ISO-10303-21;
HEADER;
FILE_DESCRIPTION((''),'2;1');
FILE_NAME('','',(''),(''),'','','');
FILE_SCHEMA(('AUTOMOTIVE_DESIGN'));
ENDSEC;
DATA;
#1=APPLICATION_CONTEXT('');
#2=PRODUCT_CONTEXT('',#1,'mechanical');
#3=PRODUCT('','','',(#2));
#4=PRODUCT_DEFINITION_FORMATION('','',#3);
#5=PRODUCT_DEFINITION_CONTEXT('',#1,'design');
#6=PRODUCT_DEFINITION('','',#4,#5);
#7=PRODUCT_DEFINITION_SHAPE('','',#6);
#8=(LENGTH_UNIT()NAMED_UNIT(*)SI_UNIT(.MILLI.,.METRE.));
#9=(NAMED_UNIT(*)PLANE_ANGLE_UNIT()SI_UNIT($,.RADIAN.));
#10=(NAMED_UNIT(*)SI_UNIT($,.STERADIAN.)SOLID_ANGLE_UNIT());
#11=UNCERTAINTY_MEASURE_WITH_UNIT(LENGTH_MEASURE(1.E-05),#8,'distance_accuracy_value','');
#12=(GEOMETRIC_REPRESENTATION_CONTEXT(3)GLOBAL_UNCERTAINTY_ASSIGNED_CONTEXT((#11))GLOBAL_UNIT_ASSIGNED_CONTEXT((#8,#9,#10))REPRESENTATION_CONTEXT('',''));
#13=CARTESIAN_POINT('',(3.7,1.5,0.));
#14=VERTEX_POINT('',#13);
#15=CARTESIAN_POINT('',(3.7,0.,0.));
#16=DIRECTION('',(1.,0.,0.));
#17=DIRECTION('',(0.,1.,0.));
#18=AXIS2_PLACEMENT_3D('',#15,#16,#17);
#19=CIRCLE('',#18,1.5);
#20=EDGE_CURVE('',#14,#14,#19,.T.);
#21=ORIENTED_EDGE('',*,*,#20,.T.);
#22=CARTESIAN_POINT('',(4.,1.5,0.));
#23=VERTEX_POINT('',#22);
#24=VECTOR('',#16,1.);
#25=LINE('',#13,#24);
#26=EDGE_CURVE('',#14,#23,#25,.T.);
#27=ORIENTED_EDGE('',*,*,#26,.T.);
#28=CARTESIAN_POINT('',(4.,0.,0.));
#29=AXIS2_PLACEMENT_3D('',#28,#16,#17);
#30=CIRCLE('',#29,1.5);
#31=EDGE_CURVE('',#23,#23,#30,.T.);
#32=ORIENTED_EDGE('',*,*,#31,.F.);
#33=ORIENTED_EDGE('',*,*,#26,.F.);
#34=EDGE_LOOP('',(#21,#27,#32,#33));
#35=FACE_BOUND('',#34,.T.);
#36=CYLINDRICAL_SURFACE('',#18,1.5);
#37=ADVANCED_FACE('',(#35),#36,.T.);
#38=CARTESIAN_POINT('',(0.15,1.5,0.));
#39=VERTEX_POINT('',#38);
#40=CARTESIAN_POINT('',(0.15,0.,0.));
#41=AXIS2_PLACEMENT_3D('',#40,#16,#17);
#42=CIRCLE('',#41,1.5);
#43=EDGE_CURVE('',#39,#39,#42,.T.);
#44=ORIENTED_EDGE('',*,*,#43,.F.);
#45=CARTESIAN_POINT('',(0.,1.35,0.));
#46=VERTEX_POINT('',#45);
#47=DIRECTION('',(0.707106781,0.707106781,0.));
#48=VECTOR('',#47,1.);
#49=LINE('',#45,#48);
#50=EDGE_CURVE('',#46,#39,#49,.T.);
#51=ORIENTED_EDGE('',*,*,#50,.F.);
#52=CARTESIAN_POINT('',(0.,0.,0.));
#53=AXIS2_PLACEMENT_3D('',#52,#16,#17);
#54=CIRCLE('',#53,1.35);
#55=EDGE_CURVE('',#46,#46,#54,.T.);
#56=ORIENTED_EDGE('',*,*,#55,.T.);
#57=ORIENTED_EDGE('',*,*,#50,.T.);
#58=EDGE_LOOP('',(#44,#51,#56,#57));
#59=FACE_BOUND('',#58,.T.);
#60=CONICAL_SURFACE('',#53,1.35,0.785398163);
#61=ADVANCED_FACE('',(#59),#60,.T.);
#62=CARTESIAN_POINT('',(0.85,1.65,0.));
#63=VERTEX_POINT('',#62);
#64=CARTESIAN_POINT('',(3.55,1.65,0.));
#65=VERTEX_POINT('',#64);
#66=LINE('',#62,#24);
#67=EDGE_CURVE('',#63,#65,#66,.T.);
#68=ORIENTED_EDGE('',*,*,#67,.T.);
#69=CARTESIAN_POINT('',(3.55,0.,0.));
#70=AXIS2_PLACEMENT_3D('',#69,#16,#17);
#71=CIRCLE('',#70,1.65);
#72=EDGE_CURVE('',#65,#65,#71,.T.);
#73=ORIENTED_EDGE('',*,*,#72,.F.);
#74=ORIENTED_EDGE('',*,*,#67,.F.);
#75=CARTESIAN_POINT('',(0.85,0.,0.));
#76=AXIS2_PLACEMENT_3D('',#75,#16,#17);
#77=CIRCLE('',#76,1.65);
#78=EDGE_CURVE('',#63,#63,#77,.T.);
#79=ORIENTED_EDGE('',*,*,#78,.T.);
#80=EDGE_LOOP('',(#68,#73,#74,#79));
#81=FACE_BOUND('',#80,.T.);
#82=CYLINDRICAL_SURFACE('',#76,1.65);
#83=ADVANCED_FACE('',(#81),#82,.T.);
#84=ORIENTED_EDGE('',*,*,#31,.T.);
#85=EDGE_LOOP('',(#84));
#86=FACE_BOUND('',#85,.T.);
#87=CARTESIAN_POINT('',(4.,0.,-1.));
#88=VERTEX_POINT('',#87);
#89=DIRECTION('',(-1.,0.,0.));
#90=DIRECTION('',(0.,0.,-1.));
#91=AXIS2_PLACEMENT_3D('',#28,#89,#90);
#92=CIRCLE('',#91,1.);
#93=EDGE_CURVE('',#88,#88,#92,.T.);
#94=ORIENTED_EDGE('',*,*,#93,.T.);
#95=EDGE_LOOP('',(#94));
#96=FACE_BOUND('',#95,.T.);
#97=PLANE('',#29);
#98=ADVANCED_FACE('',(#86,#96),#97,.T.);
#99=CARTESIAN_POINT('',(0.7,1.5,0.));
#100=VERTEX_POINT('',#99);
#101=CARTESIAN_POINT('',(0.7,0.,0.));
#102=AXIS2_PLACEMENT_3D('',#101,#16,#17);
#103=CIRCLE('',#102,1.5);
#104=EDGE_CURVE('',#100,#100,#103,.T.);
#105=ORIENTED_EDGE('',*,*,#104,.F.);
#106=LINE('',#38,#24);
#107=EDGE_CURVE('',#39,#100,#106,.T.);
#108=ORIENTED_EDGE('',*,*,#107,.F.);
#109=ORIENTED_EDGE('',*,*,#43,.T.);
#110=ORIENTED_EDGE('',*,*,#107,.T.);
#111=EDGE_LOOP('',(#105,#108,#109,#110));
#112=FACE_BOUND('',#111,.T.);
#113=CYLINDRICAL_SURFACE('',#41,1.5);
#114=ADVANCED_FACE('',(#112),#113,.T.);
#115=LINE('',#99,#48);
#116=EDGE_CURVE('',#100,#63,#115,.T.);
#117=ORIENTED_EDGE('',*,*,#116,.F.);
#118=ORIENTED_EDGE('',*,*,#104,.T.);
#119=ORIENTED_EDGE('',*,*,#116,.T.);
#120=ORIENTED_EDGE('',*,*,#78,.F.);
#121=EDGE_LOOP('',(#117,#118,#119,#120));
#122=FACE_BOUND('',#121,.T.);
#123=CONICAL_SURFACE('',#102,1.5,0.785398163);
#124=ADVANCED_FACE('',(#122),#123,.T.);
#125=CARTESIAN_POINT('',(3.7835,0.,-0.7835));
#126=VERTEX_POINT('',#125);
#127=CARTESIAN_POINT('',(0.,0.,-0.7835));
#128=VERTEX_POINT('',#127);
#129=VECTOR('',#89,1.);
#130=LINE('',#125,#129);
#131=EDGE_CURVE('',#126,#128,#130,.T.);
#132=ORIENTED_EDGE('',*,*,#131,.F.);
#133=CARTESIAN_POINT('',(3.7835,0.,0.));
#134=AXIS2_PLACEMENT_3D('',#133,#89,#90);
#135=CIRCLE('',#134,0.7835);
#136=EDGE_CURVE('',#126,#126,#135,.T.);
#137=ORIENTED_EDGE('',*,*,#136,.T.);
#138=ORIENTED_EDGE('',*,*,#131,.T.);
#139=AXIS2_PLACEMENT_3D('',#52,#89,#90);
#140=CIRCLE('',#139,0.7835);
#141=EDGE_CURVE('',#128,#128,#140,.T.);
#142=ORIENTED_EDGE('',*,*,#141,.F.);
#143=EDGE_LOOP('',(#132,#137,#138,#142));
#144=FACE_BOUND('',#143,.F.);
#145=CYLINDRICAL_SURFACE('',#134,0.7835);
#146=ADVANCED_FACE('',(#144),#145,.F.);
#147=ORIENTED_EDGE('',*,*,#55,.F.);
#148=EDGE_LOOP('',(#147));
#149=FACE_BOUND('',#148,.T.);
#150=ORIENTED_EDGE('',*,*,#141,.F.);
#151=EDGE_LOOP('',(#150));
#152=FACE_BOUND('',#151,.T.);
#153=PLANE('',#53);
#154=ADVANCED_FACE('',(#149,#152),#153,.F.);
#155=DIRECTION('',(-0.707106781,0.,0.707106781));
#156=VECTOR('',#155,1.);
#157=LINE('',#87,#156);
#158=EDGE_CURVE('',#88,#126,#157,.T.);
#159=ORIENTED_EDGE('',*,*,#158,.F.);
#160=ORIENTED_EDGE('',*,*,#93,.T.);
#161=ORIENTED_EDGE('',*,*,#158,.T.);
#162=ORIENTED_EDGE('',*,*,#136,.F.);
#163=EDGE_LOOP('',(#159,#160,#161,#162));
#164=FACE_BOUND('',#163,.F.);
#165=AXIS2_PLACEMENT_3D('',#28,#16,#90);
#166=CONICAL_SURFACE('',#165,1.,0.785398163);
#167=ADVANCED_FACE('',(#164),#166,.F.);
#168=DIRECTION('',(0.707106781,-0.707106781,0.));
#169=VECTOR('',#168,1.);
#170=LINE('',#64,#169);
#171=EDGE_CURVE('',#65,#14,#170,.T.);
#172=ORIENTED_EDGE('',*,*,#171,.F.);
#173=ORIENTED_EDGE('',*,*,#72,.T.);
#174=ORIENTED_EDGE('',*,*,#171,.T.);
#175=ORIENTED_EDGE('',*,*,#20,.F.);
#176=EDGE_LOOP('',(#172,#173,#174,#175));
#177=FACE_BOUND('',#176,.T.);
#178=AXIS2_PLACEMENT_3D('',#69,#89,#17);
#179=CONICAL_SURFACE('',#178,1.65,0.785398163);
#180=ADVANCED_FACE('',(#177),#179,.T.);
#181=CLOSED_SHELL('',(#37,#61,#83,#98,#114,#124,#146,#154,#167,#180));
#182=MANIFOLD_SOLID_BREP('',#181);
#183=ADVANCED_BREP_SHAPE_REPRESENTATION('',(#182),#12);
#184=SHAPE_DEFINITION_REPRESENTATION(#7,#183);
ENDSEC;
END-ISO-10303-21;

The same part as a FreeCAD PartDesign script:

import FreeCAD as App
import Part
import Sketcher

V = App.Vector
Q = App.Units.Quantity


def add_polygon(sketch, points):
    """Adds a closed chain of lines whose ends are joined by coincident constraints."""
    first, n = sketch.GeometryCount, len(points)
    for a, b in zip(points, points[1:] + points[:1]):
        sketch.addGeometry(Part.LineSegment(App.Vector(*a, 0), App.Vector(*b, 0)), False)
    for i in range(n):
        sketch.addConstraint(Sketcher.Constraint("Coincident", first + i, 2, first + (i + 1) % n, 1))

doc = App.newDocument("Part")
params = doc.addObject("Spreadsheet::Sheet", "Params")
for row, (alias, value) in enumerate([
    ("sketch1_width", "4 mm"),
    ("sketch1_width2", "0.3 mm"),
    ("sketch1_width3", "2.7 mm"),
    ("sketch1_height", "1.5 mm"),
    ("revolution_angle", "360 deg"),
    ("hole_diameter", "1.567 mm"),
    ("hole_depth", "4 mm"),
    ("hole_csink_diameter", "2 mm"),
], start=1):
    params.set(f"A{row}", alias)
    params.set(f"B{row}", "=" + value)
    params.setAlias(f"B{row}", alias)

body = doc.addObject("PartDesign::Body", "Body")

# Sketch on XY plane
sketch1 = body.newObject("Sketcher::SketchObject", "Sketch")
sketch1.AttachmentSupport = (doc.getObject("XY_Plane"), [""])
sketch1.MapMode = "FlatFace"
add_polygon(sketch1, [(0, 0), (4, 0), (4, 1.5), (3.7, 1.5), (3.55, 1.65), (0.85, 1.65), (0.7, 1.5), (0.15, 1.5), (0, 1.35)])  # lines 0-8
sketch1.addConstraint(Sketcher.Constraint("Horizontal", 0))
sketch1.addConstraint(Sketcher.Constraint("Vertical", 1))
sketch1.addConstraint(Sketcher.Constraint("Horizontal", 2))
sketch1.addConstraint(Sketcher.Constraint("Horizontal", 4))
sketch1.addConstraint(Sketcher.Constraint("Horizontal", 6))
sketch1.addConstraint(Sketcher.Constraint("Vertical", 8))
sketch1.addConstraint(Sketcher.Constraint("Coincident", 8, 2, -1, 1))
sketch1.addConstraint(Sketcher.Constraint("Perpendicular", 3, 5))
sketch1.addConstraint(Sketcher.Constraint("Parallel", 5, 7))
sketch1.addConstraint(Sketcher.Constraint("Horizontal", 2, 2, 5, 2))
sketch1.addConstraint(Sketcher.Constraint("Equal", 3, 5))
sketch1.addConstraint(Sketcher.Constraint("Equal", 5, 7))
sketch1.addConstraint(Sketcher.Constraint("DistanceX", 0, 1, 0, 2, Q("4 mm")))
sketch1.addConstraint(Sketcher.Constraint("DistanceX", 2, 2, 2, 1, Q("0.3 mm")))
sketch1.addConstraint(Sketcher.Constraint("DistanceX", 4, 2, 4, 1, Q("2.7 mm")))
sketch1.addConstraint(Sketcher.Constraint("DistanceY", 1, 1, 1, 2, Q("1.5 mm")))
sketch1.addConstraint(Sketcher.Constraint("DistanceX", 5, 2, 2, 2, Q("3 mm")))
sketch1.setExpression("Constraints[21]", "Params.sketch1_width")
sketch1.setExpression("Constraints[22]", "Params.sketch1_width2")
sketch1.setExpression("Constraints[23]", "Params.sketch1_width3")
sketch1.setExpression("Constraints[24]", "Params.sketch1_height")
revolution = body.newObject("PartDesign::Revolution", "Revolution")
revolution.Profile = sketch1
revolution.ReferenceAxis = (sketch1, ["H_Axis"])
revolution.setExpression("Angle", "Params.revolution_angle")

# Sketch on YZ plane
sketch2 = body.newObject("Sketcher::SketchObject", "Sketch001")
sketch2.AttachmentSupport = (doc.getObject("YZ_Plane"), [""])
sketch2.MapMode = "FlatFace"
sketch2.AttachmentOffset = App.Placement(V(0, 0, 4), App.Rotation())
sketch2.addGeometry(Part.Circle(V(0, 0, 0), V(0, 0, 1), 0.7835), False)
sketch2.addConstraint(Sketcher.Constraint("Coincident", 0, 3, -1, 1))
sketch2.addConstraint(Sketcher.Constraint("Diameter", 0, Q("1.567 mm")))
doc.recompute()
hole = body.newObject("PartDesign::Hole", "Hole")
hole.Profile = sketch2
hole.ThreadType = "None"
hole.setExpression("Diameter", "Params.hole_diameter")
hole.DepthType = "Dimension"
hole.setExpression("Depth", "Params.hole_depth")
hole.DrillPoint = "Flat"
hole.HoleCutType = "Countersink"
hole.setExpression("HoleCutDiameter", "Params.hole_csink_diameter")
hole.HoleCutCountersinkAngle = 90

doc.recompute()
